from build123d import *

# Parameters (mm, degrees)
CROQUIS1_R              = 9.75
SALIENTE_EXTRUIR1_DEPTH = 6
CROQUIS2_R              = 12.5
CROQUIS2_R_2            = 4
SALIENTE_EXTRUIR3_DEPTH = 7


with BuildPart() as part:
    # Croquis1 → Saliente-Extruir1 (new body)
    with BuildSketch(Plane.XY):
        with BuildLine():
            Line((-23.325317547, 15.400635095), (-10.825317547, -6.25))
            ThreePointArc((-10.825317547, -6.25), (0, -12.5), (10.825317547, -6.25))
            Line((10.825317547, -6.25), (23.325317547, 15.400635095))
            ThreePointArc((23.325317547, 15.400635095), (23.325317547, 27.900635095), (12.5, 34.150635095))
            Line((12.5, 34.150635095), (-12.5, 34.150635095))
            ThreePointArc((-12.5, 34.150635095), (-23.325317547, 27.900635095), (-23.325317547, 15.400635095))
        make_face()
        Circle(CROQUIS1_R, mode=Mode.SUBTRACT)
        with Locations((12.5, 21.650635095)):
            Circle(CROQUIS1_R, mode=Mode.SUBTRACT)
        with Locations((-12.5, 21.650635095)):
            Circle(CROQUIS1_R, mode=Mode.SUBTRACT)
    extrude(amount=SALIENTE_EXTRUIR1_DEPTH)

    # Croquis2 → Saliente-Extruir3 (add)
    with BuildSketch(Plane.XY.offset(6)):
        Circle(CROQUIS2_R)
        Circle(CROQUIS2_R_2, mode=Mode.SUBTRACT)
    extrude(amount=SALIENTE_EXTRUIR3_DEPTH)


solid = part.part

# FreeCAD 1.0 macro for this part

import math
import FreeCAD as App
import Part
import Sketcher

V = App.Vector
Q = App.Units.Quantity

doc = App.newDocument("Part")
body = doc.addObject("PartDesign::Body", "Body")

# Sketch on XY plane
sketch1 = body.newObject("Sketcher::SketchObject", "Sketch")
sketch1.AttachmentSupport = (doc.getObject("XY_Plane"), [""])
sketch1.MapMode = "FlatFace"
sketch1.addGeometry([
    Part.LineSegment(V(-23, 15, 0), V(-11, -6, 0)),  # 0
    Part.ArcOfCircle(Part.Circle(V(0, 0, 0), V(0, 0, 1), 12), math.radians(-150), math.radians(-30)),  # 1
    Part.LineSegment(V(11, -6, 0), V(23, 15, 0)),  # 2
    Part.ArcOfCircle(Part.Circle(V(12, 22, 0), V(0, 0, 1), 12), math.radians(-30), math.radians(90)),  # 3
    Part.LineSegment(V(12, 34, 0), V(-12, 34, 0)),  # 4
    Part.ArcOfCircle(Part.Circle(V(-12, 22, 0), V(0, 0, 1), 12), math.radians(90), math.radians(210)),  # 5
    Part.Circle(V(0, 0, 0), V(0, 0, 1), 10),  # 6
    Part.Circle(V(-12, 22, 0), V(0, 0, 1), 10),  # 7
    Part.Circle(V(12, 22, 0), V(0, 0, 1), 10),  # 8
], False)
sketch1.addConstraint([
    Sketcher.Constraint("Tangent", 0, 2, 1, 1),
    Sketcher.Constraint("Tangent", 1, 2, 2, 1),
    Sketcher.Constraint("Tangent", 2, 2, 3, 1),
    Sketcher.Constraint("Tangent", 3, 2, 4, 1),
    Sketcher.Constraint("Tangent", 4, 2, 5, 1),
    Sketcher.Constraint("Tangent", 5, 2, 0, 1),
    Sketcher.Constraint("Horizontal", 4),
    Sketcher.Constraint("Coincident", 1, 3, -1, 1),
    Sketcher.Constraint("Coincident", 6, 3, -1, 1),
    Sketcher.Constraint("Coincident", 7, 3, 5, 3),
    Sketcher.Constraint("Coincident", 8, 3, 3, 3),
    Sketcher.Constraint("Equal", 1, 3),
    Sketcher.Constraint("Equal", 3, 5),
    Sketcher.Constraint("Equal", 6, 7),
    Sketcher.Constraint("Equal", 7, 8),
    Sketcher.Constraint("Horizontal", 0, 2, 1, 2),
    Sketcher.Constraint("Diameter", 6, Q("19.5 mm")),
    Sketcher.Constraint("Radius", 1, Q("12.5 mm")),
    Sketcher.Constraint("DistanceX", 4, 2, 4, 1, Q("25 mm")),
    Sketcher.Constraint("Angle", 0, Q("-60 deg")),
])
pad1 = body.newObject("PartDesign::Pad", "Pad")
pad1.Profile = sketch1
pad1.Length = 6

# Sketch on XY plane
sketch2 = body.newObject("Sketcher::SketchObject", "Sketch001")
sketch2.AttachmentSupport = (doc.getObject("XY_Plane"), [""])
sketch2.MapMode = "FlatFace"
sketch2.AttachmentOffset = App.Placement(V(0, 0, 6), App.Rotation())
sketch2.addGeometry([
    Part.Circle(V(0, 0, 0), V(0, 0, 1), 12.5),
    Part.Circle(V(0, 0, 0), V(0, 0, 1), 4),
], False)
sketch2.addConstraint([
    Sketcher.Constraint("Coincident", 0, 3, -1, 1),
    Sketcher.Constraint("Coincident", 1, 3, -1, 1),
    Sketcher.Constraint("Diameter", 0, Q("25 mm")),
    Sketcher.Constraint("Diameter", 1, Q("8 mm")),
])
pad2 = body.newObject("PartDesign::Pad", "Pad001")
pad2.Profile = sketch2
pad2.Length = 7

doc.recompute()
